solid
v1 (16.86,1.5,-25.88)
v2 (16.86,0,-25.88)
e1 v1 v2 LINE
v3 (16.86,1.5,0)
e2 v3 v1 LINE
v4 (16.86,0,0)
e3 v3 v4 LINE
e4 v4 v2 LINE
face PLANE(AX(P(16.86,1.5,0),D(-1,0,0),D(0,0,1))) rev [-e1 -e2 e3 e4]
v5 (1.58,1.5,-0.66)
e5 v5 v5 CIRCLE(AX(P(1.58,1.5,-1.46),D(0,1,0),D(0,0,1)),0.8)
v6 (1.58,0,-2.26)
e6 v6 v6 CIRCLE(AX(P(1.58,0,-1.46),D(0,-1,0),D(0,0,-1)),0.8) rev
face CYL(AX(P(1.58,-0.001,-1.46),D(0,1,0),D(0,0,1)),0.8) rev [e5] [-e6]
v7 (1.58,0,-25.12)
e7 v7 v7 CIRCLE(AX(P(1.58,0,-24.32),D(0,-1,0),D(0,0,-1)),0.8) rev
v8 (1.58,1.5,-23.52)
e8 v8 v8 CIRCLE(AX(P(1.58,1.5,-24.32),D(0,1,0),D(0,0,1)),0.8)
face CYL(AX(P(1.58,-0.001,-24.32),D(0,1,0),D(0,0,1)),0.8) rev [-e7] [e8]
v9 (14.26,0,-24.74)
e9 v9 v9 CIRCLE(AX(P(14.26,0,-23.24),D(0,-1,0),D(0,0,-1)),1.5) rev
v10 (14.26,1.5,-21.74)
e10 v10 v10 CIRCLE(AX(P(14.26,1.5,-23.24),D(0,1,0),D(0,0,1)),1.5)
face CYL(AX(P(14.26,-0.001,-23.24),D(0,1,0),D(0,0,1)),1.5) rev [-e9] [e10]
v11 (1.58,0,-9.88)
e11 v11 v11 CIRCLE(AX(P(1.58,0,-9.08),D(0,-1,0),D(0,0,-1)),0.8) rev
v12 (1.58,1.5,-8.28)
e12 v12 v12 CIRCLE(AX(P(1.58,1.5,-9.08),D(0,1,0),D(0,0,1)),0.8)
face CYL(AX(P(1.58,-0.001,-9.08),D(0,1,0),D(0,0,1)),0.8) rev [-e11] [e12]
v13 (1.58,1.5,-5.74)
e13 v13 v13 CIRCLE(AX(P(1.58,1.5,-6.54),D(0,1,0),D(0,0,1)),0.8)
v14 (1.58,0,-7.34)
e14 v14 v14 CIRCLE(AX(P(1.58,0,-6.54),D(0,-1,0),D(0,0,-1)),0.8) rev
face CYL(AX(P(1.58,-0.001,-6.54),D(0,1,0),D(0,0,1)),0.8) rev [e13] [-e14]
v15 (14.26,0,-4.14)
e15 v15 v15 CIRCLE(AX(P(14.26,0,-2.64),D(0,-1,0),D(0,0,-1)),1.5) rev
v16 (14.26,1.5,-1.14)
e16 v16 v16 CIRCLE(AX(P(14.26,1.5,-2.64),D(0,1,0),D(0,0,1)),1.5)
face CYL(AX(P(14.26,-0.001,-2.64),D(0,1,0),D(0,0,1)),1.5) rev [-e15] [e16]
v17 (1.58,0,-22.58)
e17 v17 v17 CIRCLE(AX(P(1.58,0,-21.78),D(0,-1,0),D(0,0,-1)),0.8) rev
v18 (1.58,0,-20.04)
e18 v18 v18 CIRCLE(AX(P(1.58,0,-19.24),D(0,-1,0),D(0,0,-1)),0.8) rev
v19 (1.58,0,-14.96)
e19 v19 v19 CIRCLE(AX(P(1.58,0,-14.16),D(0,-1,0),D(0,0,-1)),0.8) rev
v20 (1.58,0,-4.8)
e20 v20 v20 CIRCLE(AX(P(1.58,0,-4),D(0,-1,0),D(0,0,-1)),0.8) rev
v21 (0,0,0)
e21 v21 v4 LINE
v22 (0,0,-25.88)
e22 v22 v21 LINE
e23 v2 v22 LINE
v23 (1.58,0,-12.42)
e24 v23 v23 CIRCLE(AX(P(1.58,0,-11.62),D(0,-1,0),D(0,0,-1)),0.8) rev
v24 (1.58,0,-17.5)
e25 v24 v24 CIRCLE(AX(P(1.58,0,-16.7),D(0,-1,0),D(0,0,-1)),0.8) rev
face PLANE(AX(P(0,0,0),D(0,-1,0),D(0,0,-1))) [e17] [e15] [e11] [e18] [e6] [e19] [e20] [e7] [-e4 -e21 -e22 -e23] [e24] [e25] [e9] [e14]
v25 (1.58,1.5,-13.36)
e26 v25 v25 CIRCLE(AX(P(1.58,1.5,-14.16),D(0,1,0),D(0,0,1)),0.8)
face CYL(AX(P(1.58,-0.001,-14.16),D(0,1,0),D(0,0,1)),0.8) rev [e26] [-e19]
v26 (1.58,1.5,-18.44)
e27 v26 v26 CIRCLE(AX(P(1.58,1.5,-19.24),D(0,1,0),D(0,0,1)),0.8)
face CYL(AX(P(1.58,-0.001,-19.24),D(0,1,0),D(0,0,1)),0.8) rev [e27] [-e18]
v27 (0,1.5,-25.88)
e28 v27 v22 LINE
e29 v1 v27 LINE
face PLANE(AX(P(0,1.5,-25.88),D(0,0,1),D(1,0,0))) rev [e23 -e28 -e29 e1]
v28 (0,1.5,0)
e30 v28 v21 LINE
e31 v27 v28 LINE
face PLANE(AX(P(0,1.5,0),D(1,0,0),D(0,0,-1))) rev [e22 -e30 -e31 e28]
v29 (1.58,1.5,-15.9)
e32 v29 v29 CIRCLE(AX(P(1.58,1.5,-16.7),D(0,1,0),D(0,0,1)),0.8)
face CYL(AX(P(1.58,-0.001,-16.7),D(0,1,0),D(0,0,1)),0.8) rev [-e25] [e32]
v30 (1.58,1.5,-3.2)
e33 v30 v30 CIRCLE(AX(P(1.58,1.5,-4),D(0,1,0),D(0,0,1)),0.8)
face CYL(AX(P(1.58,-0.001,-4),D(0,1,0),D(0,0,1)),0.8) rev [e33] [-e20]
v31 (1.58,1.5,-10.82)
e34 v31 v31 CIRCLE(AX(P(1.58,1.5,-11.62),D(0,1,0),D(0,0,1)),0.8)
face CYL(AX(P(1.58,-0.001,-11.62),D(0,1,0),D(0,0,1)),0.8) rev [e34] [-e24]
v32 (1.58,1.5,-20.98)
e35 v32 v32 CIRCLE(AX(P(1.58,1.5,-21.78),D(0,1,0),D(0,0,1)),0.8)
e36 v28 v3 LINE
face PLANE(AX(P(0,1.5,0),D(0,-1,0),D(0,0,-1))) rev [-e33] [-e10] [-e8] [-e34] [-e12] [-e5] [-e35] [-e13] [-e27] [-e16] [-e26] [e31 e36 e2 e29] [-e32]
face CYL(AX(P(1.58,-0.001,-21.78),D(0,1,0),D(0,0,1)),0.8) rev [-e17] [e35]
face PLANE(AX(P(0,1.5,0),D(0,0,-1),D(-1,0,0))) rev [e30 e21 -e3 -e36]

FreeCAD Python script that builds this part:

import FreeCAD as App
import Part
import Sketcher
Q = App.Units.Quantity

doc = App.newDocument("Part")
body = doc.addObject("PartDesign::Body", "Body")

sketch1 = body.newObject("Sketcher::SketchObject", "Sketch")
sketch1.AttachmentSupport = (doc.getObject("XZ_Plane"), [""])
sketch1.MapMode = "FlatFace"
sketch1.addGeometry([
    Part.LineSegment(App.Vector(0, -26, 0), App.Vector(0, 0, 0)),
    Part.LineSegment(App.Vector(0, 0, 0), App.Vector(17, 0, 0)),
    Part.LineSegment(App.Vector(17, 0, 0), App.Vector(17, -26, 0)),
    Part.LineSegment(App.Vector(17, -26, 0), App.Vector(0, -26, 0)),
], False)
sketch1.addConstraint([
    Sketcher.Constraint("Coincident", 0, 2, 1, 1),
    Sketcher.Constraint("Coincident", 1, 2, 2, 1),
    Sketcher.Constraint("Coincident", 2, 2, 3, 1),
    Sketcher.Constraint("Coincident", 3, 2, 0, 1),
    Sketcher.Constraint("Vertical", 0),
    Sketcher.Constraint("Horizontal", 1),
    Sketcher.Constraint("Vertical", 2),
    Sketcher.Constraint("Horizontal", 3),
    Sketcher.Constraint("Coincident", 0, 2, -1, 1),
    Sketcher.Constraint("DistanceX", 1, 1, 1, 2, Q("16.86 mm")),
    Sketcher.Constraint("DistanceY", 0, 1, 0, 2, Q("25.88 mm")),
])
pad1 = body.newObject("PartDesign::Pad", "Pad")
pad1.Profile = sketch1
pad1.Length = 1.5
pad1.Reversed = True

sketch2 = body.newObject("Sketcher::SketchObject", "Sketch001")
sketch2.AttachmentSupport = (doc.getObject("XZ_Plane"), [""])
sketch2.MapMode = "FlatFace"
sketch2.AttachmentOffset = App.Placement(App.Vector(0, 0, -1.5), App.Rotation())
sketch2.addGeometry(Part.Circle(App.Vector(14.3, -23.2, 0), App.Vector(0, 0, 1), 1.5), False)
sketch2.addConstraint([
    Sketcher.Constraint("Diameter", 0, Q("3 mm")),
    Sketcher.Constraint("DistanceX", -1, 1, 0, 3, Q("14.26 mm")),
    Sketcher.Constraint("DistanceY", 0, 3, -1, 1, Q("23.24 mm")),
])
pocket1 = body.newObject("PartDesign::Pocket", "Pocket")
pocket1.Profile = sketch2
pocket1.Type = "UpToFirst"
pocket1.Reversed = True

sketch3 = body.newObject("Sketcher::SketchObject", "Sketch002")
sketch3.AttachmentSupport = (doc.getObject("XZ_Plane"), [""])
sketch3.MapMode = "FlatFace"
sketch3.AttachmentOffset = App.Placement(App.Vector(0, 0, -1.5), App.Rotation())
sketch3.addGeometry(Part.Circle(App.Vector(14.3, -2.6, 0), App.Vector(0, 0, 1), 1.5), False)
sketch3.addConstraint([
    Sketcher.Constraint("Diameter", 0, Q("3 mm")),
    Sketcher.Constraint("DistanceX", -1, 1, 0, 3, Q("14.26 mm")),
    Sketcher.Constraint("DistanceY", 0, 3, -1, 1, Q("2.64 mm")),
])
pocket2 = body.newObject("PartDesign::Pocket", "Pocket001")
pocket2.Profile = sketch3
pocket2.Type = "UpToFirst"
pocket2.Reversed = True

sketch4 = body.newObject("Sketcher::SketchObject", "Sketch003")
sketch4.AttachmentSupport = (doc.getObject("XZ_Plane"), [""])
sketch4.MapMode = "FlatFace"
sketch4.AttachmentOffset = App.Placement(App.Vector(0, 0, -1.5), App.Rotation())
sketch4.addGeometry(Part.Circle(App.Vector(1.6, -24.3, 0), App.Vector(0, 0, 1), 0.8), False)
sketch4.addConstraint([
    Sketcher.Constraint("Diameter", 0, Q("1.6 mm")),
    Sketcher.Constraint("DistanceX", -1, 1, 0, 3, Q("1.58 mm")),
    Sketcher.Constraint("DistanceY", 0, 3, -1, 1, Q("24.32 mm")),
])
pocket3 = body.newObject("PartDesign::Pocket", "Pocket002")
pocket3.Profile = sketch4
pocket3.Type = "UpToFirst"
pocket3.Reversed = True

sketch5 = body.newObject("Sketcher::SketchObject", "Sketch004")
sketch5.AttachmentSupport = (doc.getObject("XZ_Plane"), [""])
sketch5.MapMode = "FlatFace"
sketch5.AttachmentOffset = App.Placement(App.Vector(0, 0, -1.5), App.Rotation())
sketch5.addGeometry(Part.Circle(App.Vector(1.6, -21.8, 0), App.Vector(0, 0, 1), 0.8), False)
sketch5.addConstraint([
    Sketcher.Constraint("Diameter", 0, Q("1.6 mm")),
    Sketcher.Constraint("DistanceX", -1, 1, 0, 3, Q("1.58 mm")),
    Sketcher.Constraint("DistanceY", 0, 3, -1, 1, Q("21.78 mm")),
])
pocket4 = body.newObject("PartDesign::Pocket", "Pocket003")
pocket4.Profile = sketch5
pocket4.Type = "UpToFirst"
pocket4.Reversed = True

sketch6 = body.newObject("Sketcher::SketchObject", "Sketch005")
sketch6.AttachmentSupport = (doc.getObject("XZ_Plane"), [""])
sketch6.MapMode = "FlatFace"
sketch6.AttachmentOffset = App.Placement(App.Vector(0, 0, -1.5), App.Rotation())
sketch6.addGeometry(Part.Circle(App.Vector(1.6, -19.2, 0), App.Vector(0, 0, 1), 0.8), False)
sketch6.addConstraint([
    Sketcher.Constraint("Diameter", 0, Q("1.6 mm")),
    Sketcher.Constraint("DistanceX", -1, 1, 0, 3, Q("1.58 mm")),
    Sketcher.Constraint("DistanceY", 0, 3, -1, 1, Q("19.24 mm")),
])
pocket5 = body.newObject("PartDesign::Pocket", "Pocket004")
pocket5.Profile = sketch6
pocket5.Type = "UpToFirst"
pocket5.Reversed = True

sketch7 = body.newObject("Sketcher::SketchObject", "Sketch006")
sketch7.AttachmentSupport = (doc.getObject("XZ_Plane"), [""])
sketch7.MapMode = "FlatFace"
sketch7.AttachmentOffset = App.Placement(App.Vector(0, 0, -1.5), App.Rotation())
sketch7.addGeometry(Part.Circle(App.Vector(1.6, -16.7, 0), App.Vector(0, 0, 1), 0.8), False)
sketch7.addConstraint([
    Sketcher.Constraint("Diameter", 0, Q("1.6 mm")),
    Sketcher.Constraint("DistanceY", 0, 3, -1, 1, Q("16.7 mm")),
    Sketcher.Constraint("DistanceX", -1, 1, 0, 3, Q("1.58 mm")),
])
pocket6 = body.newObject("PartDesign::Pocket", "Pocket005")
pocket6.Profile = sketch7
pocket6.Type = "UpToFirst"
pocket6.Reversed = True

sketch8 = body.newObject("Sketcher::SketchObject", "Sketch007")
sketch8.AttachmentSupport = (doc.getObject("XZ_Plane"), [""])
sketch8.MapMode = "FlatFace"
sketch8.AttachmentOffset = App.Placement(App.Vector(0, 0, -1.5), App.Rotation())
sketch8.addGeometry(Part.Circle(App.Vector(1.6, -14.2, 0), App.Vector(0, 0, 1), 0.8), False)
sketch8.addConstraint([
    Sketcher.Constraint("Diameter", 0, Q("1.6 mm")),
    Sketcher.Constraint("DistanceX", -1, 1, 0, 3, Q("1.58 mm")),
    Sketcher.Constraint("DistanceY", 0, 3, -1, 1, Q("14.16 mm")),
])
pocket7 = body.newObject("PartDesign::Pocket", "Pocket006")
pocket7.Profile = sketch8
pocket7.Type = "UpToFirst"
pocket7.Reversed = True

sketch9 = body.newObject("Sketcher::SketchObject", "Sketch008")
sketch9.AttachmentSupport = (doc.getObject("XZ_Plane"), [""])
sketch9.MapMode = "FlatFace"
sketch9.AttachmentOffset = App.Placement(App.Vector(0, 0, -1.5), App.Rotation())
sketch9.addGeometry(Part.Circle(App.Vector(1.6, -11.6, 0), App.Vector(0, 0, 1), 0.8), False)
sketch9.addConstraint([
    Sketcher.Constraint("Diameter", 0, Q("1.6 mm")),
    Sketcher.Constraint("DistanceX", -1, 1, 0, 3, Q("1.58 mm")),
    Sketcher.Constraint("DistanceY", 0, 3, -1, 1, Q("11.62 mm")),
])
pocket8 = body.newObject("PartDesign::Pocket", "Pocket007")
pocket8.Profile = sketch9
pocket8.Type = "UpToFirst"
pocket8.Reversed = True

sketch10 = body.newObject("Sketcher::SketchObject", "Sketch009")
sketch10.AttachmentSupport = (doc.getObject("XZ_Plane"), [""])
sketch10.MapMode = "FlatFace"
sketch10.AttachmentOffset = App.Placement(App.Vector(0, 0, -1.5), App.Rotation())
sketch10.addGeometry(Part.Circle(App.Vector(1.6, -9.1, 0), App.Vector(0, 0, 1), 0.8), False)
sketch10.addConstraint([
    Sketcher.Constraint("Diameter", 0, Q("1.6 mm")),
    Sketcher.Constraint("DistanceX", -1, 1, 0, 3, Q("1.58 mm")),
    Sketcher.Constraint("DistanceY", 0, 3, -1, 1, Q("9.08 mm")),
])
pocket9 = body.newObject("PartDesign::Pocket", "Pocket008")
pocket9.Profile = sketch10
pocket9.Type = "UpToFirst"
pocket9.Reversed = True

sketch11 = body.newObject("Sketcher::SketchObject", "Sketch010")
sketch11.AttachmentSupport = (doc.getObject("XZ_Plane"), [""])
sketch11.MapMode = "FlatFace"
sketch11.AttachmentOffset = App.Placement(App.Vector(0, 0, -1.5), App.Rotation())
sketch11.addGeometry(Part.Circle(App.Vector(1.6, -6.5, 0), App.Vector(0, 0, 1), 0.8), False)
sketch11.addConstraint([
    Sketcher.Constraint("Diameter", 0, Q("1.6 mm")),
    Sketcher.Constraint("DistanceX", -1, 1, 0, 3, Q("1.58 mm")),
    Sketcher.Constraint("DistanceY", 0, 3, -1, 1, Q("6.54 mm")),
])
pocket10 = body.newObject("PartDesign::Pocket", "Pocket009")
pocket10.Profile = sketch11
pocket10.Type = "UpToFirst"
pocket10.Reversed = True

sketch12 = body.newObject("Sketcher::SketchObject", "Sketch011")
sketch12.AttachmentSupport = (doc.getObject("XZ_Plane"), [""])
sketch12.MapMode = "FlatFace"
sketch12.AttachmentOffset = App.Placement(App.Vector(0, 0, -1.5), App.Rotation())
sketch12.addGeometry(Part.Circle(App.Vector(1.6, -4, 0), App.Vector(0, 0, 1), 0.8), False)
sketch12.addConstraint([
    Sketcher.Constraint("Diameter", 0, Q("1.6 mm")),
    Sketcher.Constraint("DistanceY", 0, 3, -1, 1, Q("4 mm")),
    Sketcher.Constraint("DistanceX", -1, 1, 0, 3, Q("1.58 mm")),
])
pocket11 = body.newObject("PartDesign::Pocket", "Pocket010")
pocket11.Profile = sketch12
pocket11.Type = "UpToFirst"
pocket11.Reversed = True

sketch13 = body.newObject("Sketcher::SketchObject", "Sketch012")
sketch13.AttachmentSupport = (doc.getObject("XZ_Plane"), [""])
sketch13.MapMode = "FlatFace"
sketch13.AttachmentOffset = App.Placement(App.Vector(0, 0, -1.5), App.Rotation())
sketch13.addGeometry(Part.Circle(App.Vector(1.6, -1.5, 0), App.Vector(0, 0, 1), 0.8), False)
sketch13.addConstraint([
    Sketcher.Constraint("Diameter", 0, Q("1.6 mm")),
    Sketcher.Constraint("DistanceX", -1, 1, 0, 3, Q("1.58 mm")),
    Sketcher.Constraint("DistanceY", 0, 3, -1, 1, Q("1.46 mm")),
])
pocket12 = body.newObject("PartDesign::Pocket", "Pocket011")
pocket12.Profile = sketch13
pocket12.Type = "UpToFirst"
pocket12.Reversed = True

doc.recompute()
